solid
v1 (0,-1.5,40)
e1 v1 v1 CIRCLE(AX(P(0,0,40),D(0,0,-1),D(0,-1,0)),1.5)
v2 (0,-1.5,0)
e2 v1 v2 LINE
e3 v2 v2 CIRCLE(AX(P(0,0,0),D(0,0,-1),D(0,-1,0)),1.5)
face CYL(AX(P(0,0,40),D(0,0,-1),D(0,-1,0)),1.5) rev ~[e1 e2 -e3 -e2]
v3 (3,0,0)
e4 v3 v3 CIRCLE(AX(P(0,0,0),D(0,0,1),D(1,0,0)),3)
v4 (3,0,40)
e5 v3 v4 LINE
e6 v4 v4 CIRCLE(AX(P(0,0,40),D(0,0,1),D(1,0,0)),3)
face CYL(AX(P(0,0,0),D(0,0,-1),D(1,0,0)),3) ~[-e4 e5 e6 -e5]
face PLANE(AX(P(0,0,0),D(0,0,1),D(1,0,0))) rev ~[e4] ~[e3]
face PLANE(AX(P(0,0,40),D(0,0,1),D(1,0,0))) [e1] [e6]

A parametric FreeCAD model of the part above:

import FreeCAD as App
import Part
import Sketcher
from FreeCAD import Vector
Q = App.Units.Quantity

doc = App.newDocument("Part")
params = doc.addObject("Spreadsheet::Sheet", "Params")
for row, (alias, value) in enumerate([
    ("sketch1_diameter", "6 mm"),
    ("pad1_length", "40 mm"),
    ("sketch2_diameter", "3 mm"),
    ("hole_diameter", "3 mm"),
], start=1):
    params.set(f"A{row}", alias)
    params.set(f"B{row}", "=" + value)
    params.setAlias(f"B{row}", alias)

body = doc.addObject("PartDesign::Body", "Body")

sketch1 = body.newObject("Sketcher::SketchObject", "Sketch")
sketch1.AttachmentSupport = (doc.getObject("XY_Plane"), [""])
sketch1.MapMode = "FlatFace"
sketch1.addGeometry(Part.Circle(Vector(0, 0, 0), Vector(0, 0, 1), 3), False)
sketch1.addConstraint([
    Sketcher.Constraint("Coincident", 0, 3, -1, 1),
    Sketcher.Constraint("Diameter", 0, Q("6 mm")),
])
sketch1.setExpression("Constraints[1]", "Params.sketch1_diameter")
pad1 = body.newObject("PartDesign::Pad", "Pad")
pad1.Profile = sketch1
pad1.setExpression("Length", "Params.pad1_length")

sketch2 = body.newObject("Sketcher::SketchObject", "Sketch001")
sketch2.AttachmentSupport = (doc.getObject("XY_Plane"), [""])
sketch2.MapMode = "FlatFace"
sketch2.AttachmentOffset = App.Placement(Vector(0, 0, 40), App.Rotation())
sketch2.addGeometry(Part.Circle(Vector(0, 0, 0), Vector(0, 0, 1), 1.5), False)
sketch2.addConstraint([
    Sketcher.Constraint("Coincident", 0, 3, -1, 1),
    Sketcher.Constraint("Diameter", 0, Q("3 mm")),
])
sketch2.setExpression("Constraints[1]", "Params.sketch2_diameter")
doc.recompute()
hole = body.newObject("PartDesign::Hole", "Hole")
hole.Profile = sketch2
hole.ThreadType = "None"
hole.setExpression("Diameter", "Params.hole_diameter")
hole.DepthType = "ThroughAll"

doc.recompute()
